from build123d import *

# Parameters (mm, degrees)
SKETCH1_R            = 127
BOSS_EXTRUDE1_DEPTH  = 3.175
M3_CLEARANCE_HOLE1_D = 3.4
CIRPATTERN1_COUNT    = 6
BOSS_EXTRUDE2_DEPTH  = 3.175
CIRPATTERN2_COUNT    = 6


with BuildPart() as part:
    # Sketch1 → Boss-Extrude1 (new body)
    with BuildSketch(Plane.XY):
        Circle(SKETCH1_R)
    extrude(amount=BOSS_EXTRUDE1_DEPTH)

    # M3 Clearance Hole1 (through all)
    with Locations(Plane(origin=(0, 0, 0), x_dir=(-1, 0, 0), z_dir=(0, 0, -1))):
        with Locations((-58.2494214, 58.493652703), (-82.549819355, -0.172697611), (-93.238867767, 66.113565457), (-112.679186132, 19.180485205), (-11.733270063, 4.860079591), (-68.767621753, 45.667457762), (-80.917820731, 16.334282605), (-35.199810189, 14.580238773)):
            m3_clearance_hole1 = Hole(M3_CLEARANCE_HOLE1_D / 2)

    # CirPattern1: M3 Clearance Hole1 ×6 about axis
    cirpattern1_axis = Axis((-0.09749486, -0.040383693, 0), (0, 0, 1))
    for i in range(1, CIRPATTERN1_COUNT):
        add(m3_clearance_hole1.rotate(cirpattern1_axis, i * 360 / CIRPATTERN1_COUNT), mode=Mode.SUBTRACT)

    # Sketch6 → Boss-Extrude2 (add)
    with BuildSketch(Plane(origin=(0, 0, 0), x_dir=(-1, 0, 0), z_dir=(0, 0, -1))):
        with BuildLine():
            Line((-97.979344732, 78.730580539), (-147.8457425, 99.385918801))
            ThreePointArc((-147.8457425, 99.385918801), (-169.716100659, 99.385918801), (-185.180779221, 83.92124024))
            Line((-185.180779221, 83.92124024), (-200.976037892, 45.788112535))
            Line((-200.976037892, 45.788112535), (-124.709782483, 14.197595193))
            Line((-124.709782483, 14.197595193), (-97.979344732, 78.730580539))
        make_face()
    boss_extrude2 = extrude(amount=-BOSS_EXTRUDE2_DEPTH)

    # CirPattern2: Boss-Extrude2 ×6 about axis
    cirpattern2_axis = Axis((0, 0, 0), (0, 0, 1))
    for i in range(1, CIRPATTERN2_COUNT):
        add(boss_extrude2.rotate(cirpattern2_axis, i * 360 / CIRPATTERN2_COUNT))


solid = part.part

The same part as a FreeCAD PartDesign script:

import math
import FreeCAD as App
import Part
import Sketcher

V = App.Vector
Q = App.Units.Quantity

doc = App.newDocument("Part")
params = doc.addObject("Spreadsheet::Sheet", "Params")
for row, (alias, value) in enumerate([
    ("sketch1_diameter", "10 in"),
    ("pad1_length", "0.125 in"),
    ("hole_diameter", "3.4 mm"),
    ("sketch3_radius", "1.125 in"),
    ("sketch3_length", "3.25 in"),
    ("sketch3_length2", "2.75 in"),
    ("pad2_length", "0.125 in"),
], start=1):
    params.set(f"A{row}", alias)
    params.set(f"B{row}", "=" + value)
    params.setAlias(f"B{row}", alias)

body = doc.addObject("PartDesign::Body", "Body")

sketch1 = body.newObject("Sketcher::SketchObject", "Sketch")
sketch1.AttachmentSupport = (doc.getObject("XY_Plane"), [""])
sketch1.MapMode = "FlatFace"
sketch1.addGeometry(Part.Circle(V(0, 0, 0), V(0, 0, 1), 127), False)
sketch1.addConstraint(Sketcher.Constraint("Coincident", 0, 3, -1, 1))
sketch1.addConstraint(Sketcher.Constraint("Diameter", 0, Q("10 in")))
sketch1.setExpression("Constraints[1]", "Params.sketch1_diameter")
pad1 = body.newObject("PartDesign::Pad", "Pad")
pad1.Profile = sketch1
pad1.setExpression("Length", "Params.pad1_length")

sketch2 = body.newObject("Sketcher::SketchObject", "Sketch001")
sketch2.AttachmentSupport = (doc.getObject("XY_Plane"), [""])
sketch2.MapMode = "FlatFace"
sketch2.addGeometry(Part.Circle(V(58.249421, 58.493653, 0), V(0, 0, 1), 1.7), False)
sketch2.addGeometry(Part.Circle(V(82.549819, -0.172698, 0), V(0, 0, 1), 1.7), False)
sketch2.addGeometry(Part.Circle(V(93.238868, 66.113565, 0), V(0, 0, 1), 1.7), False)
sketch2.addGeometry(Part.Circle(V(112.679186, 19.180485, 0), V(0, 0, 1), 1.7), False)
sketch2.addGeometry(Part.Circle(V(11.73327, 4.86008, 0), V(0, 0, 1), 1.7), False)
sketch2.addGeometry(Part.Circle(V(68.767622, 45.667458, 0), V(0, 0, 1), 1.7), False)
sketch2.addGeometry(Part.Circle(V(80.917821, 16.334283, 0), V(0, 0, 1), 1.7), False)
sketch2.addGeometry(Part.Circle(V(35.19981, 14.580239, 0), V(0, 0, 1), 1.7), False)
sketch2.addConstraint(Sketcher.Constraint("Equal", 0, 1))
sketch2.addConstraint(Sketcher.Constraint("Equal", 1, 2))
sketch2.addConstraint(Sketcher.Constraint("Equal", 2, 3))
sketch2.addConstraint(Sketcher.Constraint("Equal", 3, 4))
sketch2.addConstraint(Sketcher.Constraint("Equal", 4, 5))
sketch2.addConstraint(Sketcher.Constraint("Equal", 5, 6))
sketch2.addConstraint(Sketcher.Constraint("Equal", 6, 7))
sketch2.addConstraint(Sketcher.Constraint("Diameter", 0, Q("3.4 mm")))
sketch2.addConstraint(Sketcher.Constraint("DistanceX", 0, 3, 5, 3, Q("10.5182 mm")))
sketch2.addConstraint(Sketcher.Constraint("DistanceX", 6, 3, 1, 3, Q("1.631999 mm")))
sketch2.addConstraint(Sketcher.Constraint("DistanceX", 5, 3, 6, 3, Q("12.150199 mm")))
sketch2.addConstraint(Sketcher.Constraint("DistanceX", -1, 1, 0, 3, Q("58.249421 mm")))
sketch2.addConstraint(Sketcher.Constraint("DistanceX", -1, 1, 4, 3, Q("11.73327 mm")))
sketch2.addConstraint(Sketcher.Constraint("DistanceY", -1, 1, 4, 3, Q("4.86008 mm")))
sketch2.addConstraint(Sketcher.Constraint("DistanceX", -1, 1, 7, 3, Q("35.19981 mm")))
sketch2.addConstraint(Sketcher.Constraint("DistanceY", -1, 1, 7, 3, Q("14.580239 mm")))
sketch2.addConstraint(Sketcher.Constraint("DistanceY", 1, 3, 0, 3, Q("58.66635 mm")))
sketch2.addConstraint(Sketcher.Constraint("DistanceX", 1, 3, 2, 3, Q("10.689048 mm")))
sketch2.addConstraint(Sketcher.Constraint("DistanceX", 2, 3, 3, 3, Q("19.440318 mm")))
sketch2.addConstraint(Sketcher.Constraint("DistanceY", 3, 3, 2, 3, Q("46.93308 mm")))
sketch2.addConstraint(Sketcher.Constraint("DistanceY", 4, 3, 5, 3, Q("40.807378 mm")))
sketch2.addConstraint(Sketcher.Constraint("DistanceY", 1, 3, 6, 3, Q("16.50698 mm")))
sketch2.addConstraint(Sketcher.Constraint("DistanceY", -1, 1, 0, 3, Q("58.493653 mm")))
sketch2.addConstraint(Sketcher.Constraint("DistanceY", -1, 1, 2, 3, Q("66.113565 mm")))
doc.recompute()
hole = body.newObject("PartDesign::Hole", "Hole")
hole.Profile = sketch2
hole.ThreadType = "None"
hole.setExpression("Diameter", "Params.hole_diameter")
hole.DepthType = "ThroughAll"
hole.Reversed = True
doc.recompute()

datumline = body.newObject("PartDesign::Line", "DatumLine")
datumline.Placement = App.Placement(V(-0.097495, -0.040384, 0), App.Rotation(V(0, 0, 1), V(0, 0, 1)))
polarpattern = body.newObject("PartDesign::PolarPattern", "PolarPattern")
polarpattern.Originals = [hole]
polarpattern.Axis = (datumline, [""])
polarpattern.Angle = 360
polarpattern.Occurrences = 6
body.Tip = polarpattern

sketch3 = body.newObject("Sketcher::SketchObject", "Sketch002")
sketch3.AttachmentSupport = (doc.getObject("XY_Plane"), [""])
sketch3.MapMode = "FlatFace"
sketch3.addGeometry(Part.LineSegment(V(97.979345, 78.730581, 0), V(147.845743, 99.385919, 0)), False)
sketch3.addGeometry(Part.ArcOfCircle(Part.Circle(V(158.780922, 72.986061, 0), V(0, 0, 1), 28.575), math.radians(22.5), math.radians(112.5)), False)
sketch3.addGeometry(Part.LineSegment(V(185.180779, 83.92124, 0), V(200.976038, 45.788113, 0)), False)
sketch3.addGeometry(Part.LineSegment(V(200.976038, 45.788113, 0), V(124.709782, 14.197595, 0)), False)
sketch3.addGeometry(Part.LineSegment(V(124.709782, 14.197595, 0), V(97.979345, 78.730581, 0)), False)
sketch3.addConstraint(Sketcher.Constraint("Tangent", 0, 2, 1, 2))
sketch3.addConstraint(Sketcher.Constraint("Tangent", 1, 1, 2, 1))
sketch3.addConstraint(Sketcher.Constraint("Coincident", 2, 2, 3, 1))
sketch3.addConstraint(Sketcher.Constraint("Coincident", 3, 2, 4, 1))
sketch3.addConstraint(Sketcher.Constraint("Coincident", 4, 2, 0, 1))
sketch3.addConstraint(Sketcher.Constraint("Perpendicular", 0, 2))
sketch3.addConstraint(Sketcher.Constraint("Perpendicular", 2, 3))
sketch3.addConstraint(Sketcher.Constraint("Perpendicular", 3, 4))
sketch3.addConstraint(Sketcher.Constraint("Radius", 1, Q("1.125 in")))
sketch3.addConstraint(Sketcher.Constraint("Angle", 0, Q("22.5 deg")))
sketch3.addConstraint(Sketcher.Constraint("Distance", 3, Q("3.25 in")))
sketch3.addConstraint(Sketcher.Constraint("Distance", 4, Q("2.75 in")))
sketch3.addConstraint(Sketcher.Constraint("DistanceX", -1, 1, 1, 3, Q("158.780922 mm")))
sketch3.addConstraint(Sketcher.Constraint("DistanceY", -1, 1, 1, 3, Q("72.986061 mm")))
sketch3.setExpression("Constraints[8]", "Params.sketch3_radius")
sketch3.setExpression("Constraints[10]", "Params.sketch3_length")
sketch3.setExpression("Constraints[11]", "Params.sketch3_length2")
pad2 = body.newObject("PartDesign::Pad", "Pad001")
pad2.Profile = sketch3
pad2.setExpression("Length", "Params.pad2_length")
doc.recompute()

polarpattern2 = body.newObject("PartDesign::PolarPattern", "PolarPattern001")
polarpattern2.Originals = [pad2]
polarpattern2.Axis = (doc.getObject("Z_Axis"), [""])
polarpattern2.Angle = 360
polarpattern2.Occurrences = 6
body.Tip = polarpattern2

doc.recompute()
